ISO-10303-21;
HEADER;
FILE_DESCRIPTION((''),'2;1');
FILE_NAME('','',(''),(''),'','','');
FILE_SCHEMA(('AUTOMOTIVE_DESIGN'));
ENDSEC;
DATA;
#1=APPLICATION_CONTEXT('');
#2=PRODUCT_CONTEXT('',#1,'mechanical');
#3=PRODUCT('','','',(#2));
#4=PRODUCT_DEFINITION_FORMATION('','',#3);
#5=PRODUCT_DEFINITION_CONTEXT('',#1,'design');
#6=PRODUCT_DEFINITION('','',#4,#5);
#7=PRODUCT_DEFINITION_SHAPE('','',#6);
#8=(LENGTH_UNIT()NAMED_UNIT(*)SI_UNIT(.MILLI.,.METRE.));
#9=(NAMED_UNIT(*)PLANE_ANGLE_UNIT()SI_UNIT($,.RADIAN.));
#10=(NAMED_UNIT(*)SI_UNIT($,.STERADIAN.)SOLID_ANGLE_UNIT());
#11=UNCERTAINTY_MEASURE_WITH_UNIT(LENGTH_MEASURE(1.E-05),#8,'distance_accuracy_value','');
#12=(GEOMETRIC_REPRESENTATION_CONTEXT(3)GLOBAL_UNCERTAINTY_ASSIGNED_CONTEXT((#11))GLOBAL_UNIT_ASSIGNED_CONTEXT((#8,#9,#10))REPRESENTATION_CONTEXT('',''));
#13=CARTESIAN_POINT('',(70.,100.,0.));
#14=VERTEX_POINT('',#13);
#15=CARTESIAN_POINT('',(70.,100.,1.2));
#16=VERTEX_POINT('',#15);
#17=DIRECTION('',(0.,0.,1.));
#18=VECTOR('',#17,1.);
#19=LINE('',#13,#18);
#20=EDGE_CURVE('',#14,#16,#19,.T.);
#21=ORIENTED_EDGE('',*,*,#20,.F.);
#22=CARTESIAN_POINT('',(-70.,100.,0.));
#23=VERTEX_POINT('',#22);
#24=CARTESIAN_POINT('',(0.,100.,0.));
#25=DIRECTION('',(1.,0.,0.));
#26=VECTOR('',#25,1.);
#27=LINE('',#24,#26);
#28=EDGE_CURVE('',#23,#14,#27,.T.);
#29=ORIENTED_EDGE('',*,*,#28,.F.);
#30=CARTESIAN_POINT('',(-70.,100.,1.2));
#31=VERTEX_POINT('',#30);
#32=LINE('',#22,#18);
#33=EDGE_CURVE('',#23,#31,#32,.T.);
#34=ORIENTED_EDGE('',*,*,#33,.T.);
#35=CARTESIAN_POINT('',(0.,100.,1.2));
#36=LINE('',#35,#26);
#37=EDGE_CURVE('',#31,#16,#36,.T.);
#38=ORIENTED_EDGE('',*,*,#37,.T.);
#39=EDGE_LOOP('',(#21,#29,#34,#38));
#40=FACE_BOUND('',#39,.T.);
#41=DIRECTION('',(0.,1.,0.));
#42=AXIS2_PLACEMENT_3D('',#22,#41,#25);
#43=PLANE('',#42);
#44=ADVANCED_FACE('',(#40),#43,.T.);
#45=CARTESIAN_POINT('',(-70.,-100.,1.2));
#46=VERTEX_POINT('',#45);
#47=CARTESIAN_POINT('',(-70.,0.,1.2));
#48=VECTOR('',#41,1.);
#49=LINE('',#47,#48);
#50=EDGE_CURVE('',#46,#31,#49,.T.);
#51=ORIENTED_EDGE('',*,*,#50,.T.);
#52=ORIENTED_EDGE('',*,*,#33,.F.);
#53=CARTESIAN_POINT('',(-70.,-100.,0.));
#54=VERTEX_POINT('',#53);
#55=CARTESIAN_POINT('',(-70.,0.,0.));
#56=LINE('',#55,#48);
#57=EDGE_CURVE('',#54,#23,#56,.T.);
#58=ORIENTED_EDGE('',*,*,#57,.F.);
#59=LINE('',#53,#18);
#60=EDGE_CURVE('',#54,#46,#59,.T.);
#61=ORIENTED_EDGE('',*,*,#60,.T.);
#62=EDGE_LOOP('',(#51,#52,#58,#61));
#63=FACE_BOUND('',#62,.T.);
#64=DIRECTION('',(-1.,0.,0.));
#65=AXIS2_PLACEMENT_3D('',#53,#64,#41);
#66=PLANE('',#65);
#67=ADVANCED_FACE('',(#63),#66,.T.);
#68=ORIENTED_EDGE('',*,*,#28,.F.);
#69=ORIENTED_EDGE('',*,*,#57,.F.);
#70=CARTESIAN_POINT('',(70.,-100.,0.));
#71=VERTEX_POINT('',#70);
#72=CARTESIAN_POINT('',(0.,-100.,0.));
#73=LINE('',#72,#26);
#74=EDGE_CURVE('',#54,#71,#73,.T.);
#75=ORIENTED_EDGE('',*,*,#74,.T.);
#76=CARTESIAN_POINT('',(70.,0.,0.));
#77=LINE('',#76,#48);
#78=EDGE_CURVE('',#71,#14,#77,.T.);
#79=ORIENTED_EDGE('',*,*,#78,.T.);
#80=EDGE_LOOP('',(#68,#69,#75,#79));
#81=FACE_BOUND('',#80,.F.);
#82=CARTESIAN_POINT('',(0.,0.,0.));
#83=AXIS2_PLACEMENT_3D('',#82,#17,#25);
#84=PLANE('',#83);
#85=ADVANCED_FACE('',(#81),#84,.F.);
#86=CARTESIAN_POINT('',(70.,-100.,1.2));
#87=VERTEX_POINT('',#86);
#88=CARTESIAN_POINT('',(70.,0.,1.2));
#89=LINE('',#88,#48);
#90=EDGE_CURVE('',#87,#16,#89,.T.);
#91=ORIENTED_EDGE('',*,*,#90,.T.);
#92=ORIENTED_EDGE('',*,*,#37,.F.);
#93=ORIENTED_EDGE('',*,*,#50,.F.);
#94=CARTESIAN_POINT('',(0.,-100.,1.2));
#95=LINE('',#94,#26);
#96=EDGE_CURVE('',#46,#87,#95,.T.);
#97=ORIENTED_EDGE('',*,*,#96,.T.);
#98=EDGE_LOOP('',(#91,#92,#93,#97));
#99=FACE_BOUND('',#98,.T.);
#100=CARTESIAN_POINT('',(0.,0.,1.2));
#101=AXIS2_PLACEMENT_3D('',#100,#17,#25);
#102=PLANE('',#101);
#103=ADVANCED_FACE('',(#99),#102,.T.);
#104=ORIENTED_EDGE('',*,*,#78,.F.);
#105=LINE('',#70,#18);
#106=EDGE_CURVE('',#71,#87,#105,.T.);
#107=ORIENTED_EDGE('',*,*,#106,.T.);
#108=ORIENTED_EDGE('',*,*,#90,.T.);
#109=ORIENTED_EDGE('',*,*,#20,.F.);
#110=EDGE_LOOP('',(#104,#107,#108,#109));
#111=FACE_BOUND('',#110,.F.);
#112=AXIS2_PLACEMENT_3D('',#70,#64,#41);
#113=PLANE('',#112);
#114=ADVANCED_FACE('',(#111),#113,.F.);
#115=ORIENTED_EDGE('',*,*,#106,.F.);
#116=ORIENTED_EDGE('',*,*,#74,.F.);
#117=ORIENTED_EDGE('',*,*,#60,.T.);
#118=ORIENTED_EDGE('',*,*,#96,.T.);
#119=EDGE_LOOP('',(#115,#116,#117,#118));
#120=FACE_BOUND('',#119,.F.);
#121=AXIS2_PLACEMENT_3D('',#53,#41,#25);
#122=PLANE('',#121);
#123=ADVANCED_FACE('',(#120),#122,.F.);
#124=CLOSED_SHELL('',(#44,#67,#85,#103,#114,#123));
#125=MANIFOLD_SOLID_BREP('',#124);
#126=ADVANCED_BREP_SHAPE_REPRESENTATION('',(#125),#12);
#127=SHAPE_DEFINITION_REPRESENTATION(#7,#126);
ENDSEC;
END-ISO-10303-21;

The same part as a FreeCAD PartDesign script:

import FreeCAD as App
import Part
import Sketcher

V = App.Vector


def add_polygon(sketch, points):
    """Adds a closed chain of lines whose ends are joined by coincident constraints."""
    first, n = sketch.GeometryCount, len(points)
    for a, b in zip(points, points[1:] + points[:1]):
        sketch.addGeometry(Part.LineSegment(App.Vector(*a, 0), App.Vector(*b, 0)), False)
    for i in range(n):
        sketch.addConstraint(Sketcher.Constraint("Coincident", first + i, 2, first + (i + 1) % n, 1))

doc = App.newDocument("Part")
body = doc.addObject("PartDesign::Body", "Body")

# Sketch on XY plane
sketch1 = body.newObject("Sketcher::SketchObject", "Sketch")
sketch1.AttachmentSupport = (doc.getObject("XY_Plane"), [""])
sketch1.MapMode = "FlatFace"
add_polygon(sketch1, [(-70, 100), (-70, -100), (70, -100), (70, 100)])  # lines 0-3
sketch1.addConstraint(Sketcher.Constraint("Vertical", 0))
sketch1.addConstraint(Sketcher.Constraint("Horizontal", 1))
sketch1.addConstraint(Sketcher.Constraint("Vertical", 2))
sketch1.addConstraint(Sketcher.Constraint("Horizontal", 3))
sketch1.addConstraint(Sketcher.Constraint("Symmetric", 0, 2, 2, 2, -1, 1))
sketch1.addConstraint(Sketcher.Constraint("DistanceX", 1, 1, 1, 2, 140.0))
sketch1.addConstraint(Sketcher.Constraint("DistanceY", 0, 2, 0, 1, 200.0))
pad1 = body.newObject("PartDesign::Pad", "Pad")
pad1.Profile = sketch1
pad1.Length = 1.2

doc.recompute()
